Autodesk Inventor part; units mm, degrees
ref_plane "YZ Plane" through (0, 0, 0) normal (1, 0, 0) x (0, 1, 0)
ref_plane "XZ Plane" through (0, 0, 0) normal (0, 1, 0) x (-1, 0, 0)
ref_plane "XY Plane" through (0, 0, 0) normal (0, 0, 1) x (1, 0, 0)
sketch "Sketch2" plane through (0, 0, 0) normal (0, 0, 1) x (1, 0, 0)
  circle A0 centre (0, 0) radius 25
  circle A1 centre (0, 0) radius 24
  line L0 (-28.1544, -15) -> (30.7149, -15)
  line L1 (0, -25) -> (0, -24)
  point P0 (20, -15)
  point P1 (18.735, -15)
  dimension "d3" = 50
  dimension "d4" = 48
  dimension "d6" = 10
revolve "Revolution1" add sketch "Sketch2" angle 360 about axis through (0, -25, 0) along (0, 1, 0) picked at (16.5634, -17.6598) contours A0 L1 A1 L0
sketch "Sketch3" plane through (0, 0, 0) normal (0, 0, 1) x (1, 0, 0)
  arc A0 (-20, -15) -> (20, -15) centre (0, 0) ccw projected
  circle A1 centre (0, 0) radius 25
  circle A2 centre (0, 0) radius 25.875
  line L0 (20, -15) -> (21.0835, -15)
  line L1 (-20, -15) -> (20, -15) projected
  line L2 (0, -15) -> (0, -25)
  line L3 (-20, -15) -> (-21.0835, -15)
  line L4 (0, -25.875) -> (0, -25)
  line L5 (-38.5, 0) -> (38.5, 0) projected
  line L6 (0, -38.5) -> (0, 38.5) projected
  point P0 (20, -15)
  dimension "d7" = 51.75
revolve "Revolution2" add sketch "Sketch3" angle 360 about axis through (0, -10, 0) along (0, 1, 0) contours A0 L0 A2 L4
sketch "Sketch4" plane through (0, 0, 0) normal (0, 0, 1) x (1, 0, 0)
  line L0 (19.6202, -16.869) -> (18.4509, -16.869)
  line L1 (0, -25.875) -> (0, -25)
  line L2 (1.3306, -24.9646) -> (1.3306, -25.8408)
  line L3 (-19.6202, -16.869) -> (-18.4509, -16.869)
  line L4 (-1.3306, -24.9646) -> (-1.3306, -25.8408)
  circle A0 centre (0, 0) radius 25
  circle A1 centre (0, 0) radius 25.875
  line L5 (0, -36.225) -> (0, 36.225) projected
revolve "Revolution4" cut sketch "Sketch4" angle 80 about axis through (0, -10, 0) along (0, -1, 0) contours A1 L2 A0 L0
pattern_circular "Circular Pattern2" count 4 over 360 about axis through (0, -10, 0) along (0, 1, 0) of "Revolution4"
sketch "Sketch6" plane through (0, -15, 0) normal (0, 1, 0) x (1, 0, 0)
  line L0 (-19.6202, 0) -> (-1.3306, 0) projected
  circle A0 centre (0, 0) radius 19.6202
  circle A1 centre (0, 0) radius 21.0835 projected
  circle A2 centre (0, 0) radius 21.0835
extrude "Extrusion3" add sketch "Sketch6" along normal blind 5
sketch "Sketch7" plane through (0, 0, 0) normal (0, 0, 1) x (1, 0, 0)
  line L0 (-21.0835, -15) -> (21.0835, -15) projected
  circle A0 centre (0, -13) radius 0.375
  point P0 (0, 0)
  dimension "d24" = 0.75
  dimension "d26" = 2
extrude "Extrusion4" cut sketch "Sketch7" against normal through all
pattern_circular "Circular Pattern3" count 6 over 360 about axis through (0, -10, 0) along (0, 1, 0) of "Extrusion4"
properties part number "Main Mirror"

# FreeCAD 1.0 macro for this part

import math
import FreeCAD as App
import Part
import Sketcher
from FreeCAD import Vector

doc = App.newDocument("Part")
body = doc.addObject("PartDesign::Body", "Body")

# Sketch on XY plane
sketch1 = doc.addObject("Sketcher::SketchObject", "Sketch")
body.addObject(sketch1)
sketch1.AttachmentSupport = (doc.XY_Plane, [""])
sketch1.MapMode = "FlatFace"
sketch1.addGeometry(Part.ArcOfCircle(Part.Circle(Vector(0, 0, 0), Vector(0, 0, 1), 25), math.radians(-90), math.radians(-36.869898)), False)
sketch1.addGeometry(Part.LineSegment(Vector(20, -15, 0), Vector(18.734994, -15, 0)), False)
sketch1.addGeometry(Part.ArcOfCircle(Part.Circle(Vector(0, 0, 0), Vector(0, 0, 1), 24), math.radians(-90), math.radians(-38.682187)), False)
sketch1.addGeometry(Part.LineSegment(Vector(0, -24, 0), Vector(0, -25, 0)), False)
sketch1.addConstraint(Sketcher.Constraint("Coincident", 0, 2, 1, 1))
sketch1.addConstraint(Sketcher.Constraint("Coincident", 1, 2, 2, 2))
sketch1.addConstraint(Sketcher.Constraint("Coincident", 2, 1, 3, 1))
sketch1.addConstraint(Sketcher.Constraint("Coincident", 3, 2, 0, 1))
sketch1.addConstraint(Sketcher.Constraint("Horizontal", 1))
sketch1.addConstraint(Sketcher.Constraint("Vertical", 3))
sketch1.addConstraint(Sketcher.Constraint("Coincident", 0, 3, -1, 1))
sketch1.addConstraint(Sketcher.Constraint("Coincident", 2, 3, -1, 1))
sketch1.addConstraint(Sketcher.Constraint("PointOnObject", 2, 1, -2))
sketch1.addConstraint(Sketcher.Constraint("Radius", 0, 25.0))
sketch1.addConstraint(Sketcher.Constraint("Radius", 2, 24.0))
sketch1.addConstraint(Sketcher.Constraint("DistanceY", 3, 2, 1, 2, 10.0))
revolution = doc.addObject("PartDesign::Revolution", "Revolution")
body.addObject(revolution)
revolution.Profile = sketch1
revolution.ReferenceAxis = (sketch1, ["V_Axis"])
revolution.Angle = 360

# Sketch on XY plane
sketch2 = doc.addObject("Sketcher::SketchObject", "Sketch001")
body.addObject(sketch2)
sketch2.AttachmentSupport = (doc.XY_Plane, [""])
sketch2.MapMode = "FlatFace"
sketch2.addGeometry(Part.ArcOfCircle(Part.Circle(Vector(0, 0, 0), Vector(0, 0, 1), 25), math.radians(-90), math.radians(-36.869898)), False)
sketch2.addGeometry(Part.LineSegment(Vector(0, -25, 0), Vector(0, -25.875, 0)), False)
sketch2.addGeometry(Part.ArcOfCircle(Part.Circle(Vector(0, 0, 0), Vector(0, 0, 1), 25.875), math.radians(-90), math.radians(-35.430209)), False)
sketch2.addGeometry(Part.LineSegment(Vector(21.0835, -15, 0), Vector(20, -15, 0)), False)
sketch2.addConstraint(Sketcher.Constraint("Coincident", 0, 1, 1, 1))
sketch2.addConstraint(Sketcher.Constraint("Coincident", 1, 2, 2, 1))
sketch2.addConstraint(Sketcher.Constraint("Coincident", 2, 2, 3, 1))
sketch2.addConstraint(Sketcher.Constraint("Coincident", 3, 2, 0, 2))
sketch2.addConstraint(Sketcher.Constraint("Vertical", 1))
sketch2.addConstraint(Sketcher.Constraint("Horizontal", 3))
sketch2.addConstraint(Sketcher.Constraint("Coincident", 0, 3, -1, 1))
sketch2.addConstraint(Sketcher.Constraint("Coincident", 2, 3, -1, 1))
sketch2.addConstraint(Sketcher.Constraint("PointOnObject", 0, 1, -2))
sketch2.addConstraint(Sketcher.Constraint("Radius", 0, 25.0))
sketch2.addConstraint(Sketcher.Constraint("Radius", 2, 25.875))
sketch2.addConstraint(Sketcher.Constraint("DistanceY", 2, 2, -1, 1, 15.0))
revolution2 = doc.addObject("PartDesign::Revolution", "Revolution001")
body.addObject(revolution2)
revolution2.Profile = sketch2
revolution2.ReferenceAxis = (sketch2, ["V_Axis"])
revolution2.Angle = 360

# Sketch on XY plane
sketch3 = doc.addObject("Sketcher::SketchObject", "Sketch002")
body.addObject(sketch3)
sketch3.AttachmentSupport = (doc.XY_Plane, [""])
sketch3.MapMode = "FlatFace"
sketch3.addGeometry(Part.ArcOfCircle(Part.Circle(Vector(0, 0, 0), Vector(0, 0, 1), 25.875), math.radians(-87.052317), math.radians(-40.688191)), False)
sketch3.addGeometry(Part.LineSegment(Vector(19.6202, -16.869, 0), Vector(18.4509, -16.869, 0)), False)
sketch3.addGeometry(Part.ArcOfCircle(Part.Circle(Vector(0, 0, 0), Vector(0, 0, 1), 25), math.radians(-86.949052), math.radians(-42.435563)), False)
sketch3.addGeometry(Part.LineSegment(Vector(1.3306, -24.9646, 0), Vector(1.3306, -25.8408, 0)), False)
sketch3.addConstraint(Sketcher.Constraint("Coincident", 0, 2, 1, 1))
sketch3.addConstraint(Sketcher.Constraint("Coincident", 1, 2, 2, 2))
sketch3.addConstraint(Sketcher.Constraint("Coincident", 2, 1, 3, 1))
sketch3.addConstraint(Sketcher.Constraint("Coincident", 3, 2, 0, 1))
sketch3.addConstraint(Sketcher.Constraint("Horizontal", 1))
sketch3.addConstraint(Sketcher.Constraint("Vertical", 3))
sketch3.addConstraint(Sketcher.Constraint("Coincident", 0, 3, -1, 1))
sketch3.addConstraint(Sketcher.Constraint("Coincident", 2, 3, -1, 1))
sketch3.addConstraint(Sketcher.Constraint("Radius", 2, 25.0))
sketch3.addConstraint(Sketcher.Constraint("Radius", 0, 25.875))
sketch3.addConstraint(Sketcher.Constraint("DistanceX", 1, 2, 1, 1, 1.1693))
sketch3.addConstraint(Sketcher.Constraint("DistanceX", -1, 1, 2, 1, 1.3306))
groove = doc.addObject("PartDesign::Groove", "Groove")
body.addObject(groove)
groove.Profile = sketch3
groove.ReferenceAxis = (sketch3, ["V_Axis"])
groove.Angle = 80
groove.Reversed = True
doc.recompute()

polarpattern = doc.addObject("PartDesign::PolarPattern", "PolarPattern")
body.addObject(polarpattern)
polarpattern.Originals = [groove]
polarpattern.Axis = (doc.Y_Axis, [""])
polarpattern.Angle = 360
polarpattern.Occurrences = 4
body.Tip = polarpattern

# Sketch on XZ plane
sketch4 = doc.addObject("Sketcher::SketchObject", "Sketch003")
body.addObject(sketch4)
sketch4.AttachmentSupport = (doc.XZ_Plane, [""])
sketch4.MapMode = "FlatFace"
sketch4.AttachmentOffset = App.Placement(Vector(0, 0, 15), App.Rotation())
sketch4.addGeometry(Part.Circle(Vector(0, 0, 0), Vector(0, 0, 1), 21.0835), False)
sketch4.addGeometry(Part.Circle(Vector(0, 0, 0), Vector(0, 0, 1), 19.6202), False)
sketch4.addConstraint(Sketcher.Constraint("Coincident", 0, 3, -1, 1))
sketch4.addConstraint(Sketcher.Constraint("Coincident", 1, 3, -1, 1))
sketch4.addConstraint(Sketcher.Constraint("Diameter", 0, 42.167))
sketch4.addConstraint(Sketcher.Constraint("Diameter", 1, 39.2404))
pad1 = doc.addObject("PartDesign::Pad", "Pad")
body.addObject(pad1)
pad1.Profile = sketch4
pad1.Length = 5
pad1.Reversed = True

# Sketch on XY plane
sketch5 = doc.addObject("Sketcher::SketchObject", "Sketch004")
body.addObject(sketch5)
sketch5.AttachmentSupport = (doc.XY_Plane, [""])
sketch5.MapMode = "FlatFace"
sketch5.addGeometry(Part.Circle(Vector(0, -13, 0), Vector(0, 0, 1), 0.375), False)
sketch5.addConstraint(Sketcher.Constraint("PointOnObject", 0, 3, -2))
sketch5.addConstraint(Sketcher.Constraint("Diameter", 0, 0.75))
sketch5.addConstraint(Sketcher.Constraint("DistanceY", 0, 3, -1, 1, 13.0))
pocket1 = doc.addObject("PartDesign::Pocket", "Pocket")
body.addObject(pocket1)
pocket1.Profile = sketch5
pocket1.Type = "ThroughAll"
doc.recompute()

polarpattern2 = doc.addObject("PartDesign::PolarPattern", "PolarPattern001")
body.addObject(polarpattern2)
polarpattern2.Originals = [pocket1]
polarpattern2.Axis = (doc.Y_Axis, [""])
polarpattern2.Angle = 360
polarpattern2.Occurrences = 6
body.Tip = polarpattern2

doc.recompute()
